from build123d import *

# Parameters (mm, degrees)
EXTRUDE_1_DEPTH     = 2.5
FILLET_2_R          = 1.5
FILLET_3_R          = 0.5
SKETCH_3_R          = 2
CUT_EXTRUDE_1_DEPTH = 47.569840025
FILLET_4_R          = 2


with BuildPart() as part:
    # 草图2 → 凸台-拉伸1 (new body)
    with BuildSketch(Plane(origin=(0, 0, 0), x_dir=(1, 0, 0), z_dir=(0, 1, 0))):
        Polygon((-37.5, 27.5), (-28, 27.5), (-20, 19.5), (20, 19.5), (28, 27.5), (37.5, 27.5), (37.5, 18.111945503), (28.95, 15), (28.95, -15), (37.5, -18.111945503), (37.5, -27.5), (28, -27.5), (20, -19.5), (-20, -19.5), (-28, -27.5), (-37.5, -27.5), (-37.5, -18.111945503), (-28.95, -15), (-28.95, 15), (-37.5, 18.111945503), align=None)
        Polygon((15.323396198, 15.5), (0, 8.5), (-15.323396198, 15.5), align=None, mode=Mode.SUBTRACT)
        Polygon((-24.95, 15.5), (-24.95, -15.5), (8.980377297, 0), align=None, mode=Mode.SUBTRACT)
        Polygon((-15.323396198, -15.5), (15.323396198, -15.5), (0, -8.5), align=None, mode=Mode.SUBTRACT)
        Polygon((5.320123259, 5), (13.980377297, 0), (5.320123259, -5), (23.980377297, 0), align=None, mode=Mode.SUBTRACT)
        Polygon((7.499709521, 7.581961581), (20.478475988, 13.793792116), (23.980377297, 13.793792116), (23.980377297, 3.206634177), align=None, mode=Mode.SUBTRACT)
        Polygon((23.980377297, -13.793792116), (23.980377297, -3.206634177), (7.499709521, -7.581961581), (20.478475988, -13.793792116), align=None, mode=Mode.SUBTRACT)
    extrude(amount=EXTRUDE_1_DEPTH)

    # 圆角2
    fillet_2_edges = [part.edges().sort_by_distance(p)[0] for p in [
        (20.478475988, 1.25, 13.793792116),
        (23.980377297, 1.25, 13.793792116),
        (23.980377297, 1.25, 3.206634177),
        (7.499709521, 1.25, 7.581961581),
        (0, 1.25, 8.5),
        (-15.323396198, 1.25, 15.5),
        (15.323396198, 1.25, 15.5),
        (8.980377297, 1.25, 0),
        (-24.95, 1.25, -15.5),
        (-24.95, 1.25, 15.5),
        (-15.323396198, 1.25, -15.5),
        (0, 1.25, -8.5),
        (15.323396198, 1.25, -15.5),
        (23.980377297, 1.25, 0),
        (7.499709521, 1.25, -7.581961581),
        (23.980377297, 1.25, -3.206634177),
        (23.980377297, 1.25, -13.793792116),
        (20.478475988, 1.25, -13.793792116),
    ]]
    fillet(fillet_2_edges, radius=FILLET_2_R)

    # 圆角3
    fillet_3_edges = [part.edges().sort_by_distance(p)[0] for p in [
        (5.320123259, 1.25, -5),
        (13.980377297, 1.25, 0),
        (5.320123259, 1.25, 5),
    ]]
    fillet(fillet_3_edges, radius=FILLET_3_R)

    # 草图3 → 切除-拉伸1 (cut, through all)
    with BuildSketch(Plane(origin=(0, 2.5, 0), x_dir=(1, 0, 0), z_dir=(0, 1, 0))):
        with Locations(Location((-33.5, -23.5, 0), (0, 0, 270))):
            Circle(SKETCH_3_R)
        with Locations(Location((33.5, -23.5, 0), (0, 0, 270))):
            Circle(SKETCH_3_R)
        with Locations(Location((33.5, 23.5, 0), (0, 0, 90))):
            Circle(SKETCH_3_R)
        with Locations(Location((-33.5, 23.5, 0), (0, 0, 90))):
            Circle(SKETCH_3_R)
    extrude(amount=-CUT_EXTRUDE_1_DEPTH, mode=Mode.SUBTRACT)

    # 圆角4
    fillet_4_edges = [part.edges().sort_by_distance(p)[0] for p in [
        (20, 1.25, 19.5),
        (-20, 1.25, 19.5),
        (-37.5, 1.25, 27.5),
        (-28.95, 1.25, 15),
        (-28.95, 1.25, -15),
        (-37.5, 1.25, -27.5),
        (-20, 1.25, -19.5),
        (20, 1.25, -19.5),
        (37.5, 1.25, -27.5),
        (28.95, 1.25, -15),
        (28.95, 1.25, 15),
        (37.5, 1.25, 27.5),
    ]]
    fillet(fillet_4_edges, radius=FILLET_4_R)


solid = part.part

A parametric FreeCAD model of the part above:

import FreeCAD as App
import Part
import Sketcher

V = App.Vector
Q = App.Units.Quantity


def edges_at(feature, points):
    """Names of the edges that pass closest to the given points."""
    edges = feature.Shape.Edges
    near = lambda p: min(range(len(edges)), key=lambda i: edges[i].distToShape(Part.Vertex(*p))[0])
    return sorted({f"Edge{near(p) + 1}" for p in points})

doc = App.newDocument("Part")
body = doc.addObject("PartDesign::Body", "Body")

# Sketch on XZ plane
sketch1 = doc.addObject("Sketcher::SketchObject", "Sketch")
body.addObject(sketch1)
sketch1.AttachmentSupport = (doc.XZ_Plane, [""])
sketch1.MapMode = "FlatFace"
sketch1.addGeometry([
    Part.LineSegment(V(-28, -27.5, 0), V(-37.5, -27.5, 0)),  # 0
    Part.LineSegment(V(-37.5, -27.5, 0), V(-37.5, -18.1, 0)),  # 1
    Part.LineSegment(V(-37.5, -18.1, 0), V(-28.9, -15, 0)),  # 2
    Part.LineSegment(V(-28.9, -15, 0), V(-28.9, 15, 0)),  # 3
    Part.LineSegment(V(-28.9, 15, 0), V(-37.5, 18.1, 0)),  # 4
    Part.LineSegment(V(-37.5, 18.1, 0), V(-37.5, 27.5, 0)),  # 5
    Part.LineSegment(V(-37.5, 27.5, 0), V(-28, 27.5, 0)),  # 6
    Part.LineSegment(V(-28, 27.5, 0), V(-20, 19.5, 0)),  # 7
    Part.LineSegment(V(-20, 19.5, 0), V(20, 19.5, 0)),  # 8
    Part.LineSegment(V(20, 19.5, 0), V(28, 27.5, 0)),  # 9
    Part.LineSegment(V(28, 27.5, 0), V(37.5, 27.5, 0)),  # 10
    Part.LineSegment(V(37.5, 27.5, 0), V(37.5, 18.1, 0)),  # 11
    Part.LineSegment(V(37.5, 18.1, 0), V(28.9, 15, 0)),  # 12
    Part.LineSegment(V(28.9, 15, 0), V(28.9, -15, 0)),  # 13
    Part.LineSegment(V(28.9, -15, 0), V(37.5, -18.1, 0)),  # 14
    Part.LineSegment(V(37.5, -18.1, 0), V(37.5, -27.5, 0)),  # 15
    Part.LineSegment(V(37.5, -27.5, 0), V(28, -27.5, 0)),  # 16
    Part.LineSegment(V(28, -27.5, 0), V(20, -19.5, 0)),  # 17
    Part.LineSegment(V(20, -19.5, 0), V(-20, -19.5, 0)),  # 18
    Part.LineSegment(V(-20, -19.5, 0), V(-28, -27.5, 0)),  # 19
    Part.LineSegment(V(24, 13.8, 0), V(20.5, 13.8, 0)),  # 20
    Part.LineSegment(V(20.5, 13.8, 0), V(7.5, 7.6, 0)),  # 21
    Part.LineSegment(V(7.5, 7.6, 0), V(24, 3.2, 0)),  # 22
    Part.LineSegment(V(24, 3.2, 0), V(24, 13.8, 0)),  # 23
    Part.LineSegment(V(-15.3, 15.5, 0), V(0, 8.5, 0)),  # 24
    Part.LineSegment(V(0, 8.5, 0), V(15.3, 15.5, 0)),  # 25
    Part.LineSegment(V(15.3, 15.5, 0), V(-15.3, 15.5, 0)),  # 26
    Part.LineSegment(V(5.3, -5, 0), V(24, 0, 0)),  # 27
    Part.LineSegment(V(24, 0, 0), V(5.3, 5, 0)),  # 28
    Part.LineSegment(V(5.3, 5, 0), V(14, 0, 0)),  # 29
    Part.LineSegment(V(14, 0, 0), V(5.3, -5, 0)),  # 30
    Part.LineSegment(V(7.5, -7.6, 0), V(20.5, -13.8, 0)),  # 31
    Part.LineSegment(V(20.5, -13.8, 0), V(24, -13.8, 0)),  # 32
    Part.LineSegment(V(24, -13.8, 0), V(24, -3.2, 0)),  # 33
    Part.LineSegment(V(24, -3.2, 0), V(7.5, -7.6, 0)),  # 34
    Part.LineSegment(V(15.3, -15.5, 0), V(0, -8.5, 0)),  # 35
    Part.LineSegment(V(0, -8.5, 0), V(-15.3, -15.5, 0)),  # 36
    Part.LineSegment(V(-15.3, -15.5, 0), V(15.3, -15.5, 0)),  # 37
    Part.LineSegment(V(-24.9, -15.5, 0), V(9, 0, 0)),  # 38
    Part.LineSegment(V(9, 0, 0), V(-24.9, 15.5, 0)),  # 39
    Part.LineSegment(V(-24.9, 15.5, 0), V(-24.9, -15.5, 0)),  # 40
], False)
sketch1.addConstraint([
    Sketcher.Constraint("Coincident", 0, 2, 1, 1),
    Sketcher.Constraint("Coincident", 1, 2, 2, 1),
    Sketcher.Constraint("Coincident", 2, 2, 3, 1),
    Sketcher.Constraint("Coincident", 3, 2, 4, 1),
    Sketcher.Constraint("Coincident", 4, 2, 5, 1),
    Sketcher.Constraint("Coincident", 5, 2, 6, 1),
    Sketcher.Constraint("Coincident", 6, 2, 7, 1),
    Sketcher.Constraint("Coincident", 7, 2, 8, 1),
    Sketcher.Constraint("Coincident", 8, 2, 9, 1),
    Sketcher.Constraint("Coincident", 9, 2, 10, 1),
    Sketcher.Constraint("Coincident", 10, 2, 11, 1),
    Sketcher.Constraint("Coincident", 11, 2, 12, 1),
    Sketcher.Constraint("Coincident", 12, 2, 13, 1),
    Sketcher.Constraint("Coincident", 13, 2, 14, 1),
    Sketcher.Constraint("Coincident", 14, 2, 15, 1),
    Sketcher.Constraint("Coincident", 15, 2, 16, 1),
    Sketcher.Constraint("Coincident", 16, 2, 17, 1),
    Sketcher.Constraint("Coincident", 17, 2, 18, 1),
    Sketcher.Constraint("Coincident", 18, 2, 19, 1),
    Sketcher.Constraint("Coincident", 19, 2, 0, 1),
    Sketcher.Constraint("Coincident", 20, 2, 21, 1),
    Sketcher.Constraint("Coincident", 21, 2, 22, 1),
    Sketcher.Constraint("Coincident", 22, 2, 23, 1),
    Sketcher.Constraint("Coincident", 23, 2, 20, 1),
    Sketcher.Constraint("Coincident", 24, 2, 25, 1),
    Sketcher.Constraint("Coincident", 25, 2, 26, 1),
    Sketcher.Constraint("Coincident", 26, 2, 24, 1),
    Sketcher.Constraint("Coincident", 27, 2, 28, 1),
    Sketcher.Constraint("Coincident", 28, 2, 29, 1),
    Sketcher.Constraint("Coincident", 29, 2, 30, 1),
    Sketcher.Constraint("Coincident", 30, 2, 27, 1),
    Sketcher.Constraint("Coincident", 31, 2, 32, 1),
    Sketcher.Constraint("Coincident", 32, 2, 33, 1),
    Sketcher.Constraint("Coincident", 33, 2, 34, 1),
    Sketcher.Constraint("Coincident", 34, 2, 31, 1),
    Sketcher.Constraint("Coincident", 35, 2, 36, 1),
    Sketcher.Constraint("Coincident", 36, 2, 37, 1),
    Sketcher.Constraint("Coincident", 37, 2, 35, 1),
    Sketcher.Constraint("Coincident", 38, 2, 39, 1),
    Sketcher.Constraint("Coincident", 39, 2, 40, 1),
    Sketcher.Constraint("Coincident", 40, 2, 38, 1),
    Sketcher.Constraint("Horizontal", 0),
    Sketcher.Constraint("Vertical", 1),
    Sketcher.Constraint("Vertical", 3),
    Sketcher.Constraint("Vertical", 5),
    Sketcher.Constraint("Horizontal", 6),
    Sketcher.Constraint("Horizontal", 8),
    Sketcher.Constraint("Horizontal", 10),
    Sketcher.Constraint("Vertical", 11),
    Sketcher.Constraint("Vertical", 13),
    Sketcher.Constraint("Vertical", 15),
    Sketcher.Constraint("Horizontal", 16),
    Sketcher.Constraint("Horizontal", 18),
    Sketcher.Constraint("Horizontal", 20),
    Sketcher.Constraint("Vertical", 23),
    Sketcher.Constraint("Horizontal", 26),
    Sketcher.Constraint("Horizontal", 32),
    Sketcher.Constraint("Vertical", 33),
    Sketcher.Constraint("Horizontal", 37),
    Sketcher.Constraint("Vertical", 40),
    Sketcher.Constraint("Symmetric", 0, 2, 10, 2, -1, 1),
    Sketcher.Constraint("Symmetric", 2, 2, 12, 2, -1, 1),
    Sketcher.Constraint("Symmetric", 4, 2, 14, 2, -1, 1),
    Sketcher.Constraint("Symmetric", 6, 2, 16, 2, -1, 1),
    Sketcher.Constraint("Symmetric", 7, 2, 17, 2, -1, 1),
    Sketcher.Constraint("Symmetric", 24, 2, 35, 2, -1, 1),
    Sketcher.Constraint("Symmetric", 25, 2, 36, 2, -1, 1),
    Sketcher.Constraint("Symmetric", 6, 2, 9, 2, -2),
    Sketcher.Constraint("Symmetric", 4, 2, 11, 2, -2),
    Sketcher.Constraint("Symmetric", 28, 2, 30, 2, -1),
    Sketcher.Constraint("Symmetric", 20, 2, 31, 2, -1),
    Sketcher.Constraint("Symmetric", 22, 2, 33, 2, -1),
    Sketcher.Constraint("Symmetric", 21, 2, 34, 2, -1),
    Sketcher.Constraint("PointOnObject", 24, 2, -2),
    Sketcher.Constraint("PointOnObject", 27, 2, -1),
    Sketcher.Constraint("PointOnObject", 29, 2, -1),
    Sketcher.Constraint("PointOnObject", 38, 2, -1),
    Sketcher.Constraint("Perpendicular", 7, 9),
    Sketcher.Constraint("Parallel", 2, 12),
    Sketcher.Constraint("Parallel", 4, 14),
    Sketcher.Constraint("Perpendicular", 17, 19),
    Sketcher.Constraint("Parallel", 24, 35),
    Sketcher.Constraint("Parallel", 36, 38),
    Sketcher.Constraint("Parallel", 35, 39),
    Sketcher.Constraint("Horizontal", 3, 2, 12, 2),
    Sketcher.Constraint("Horizontal", 26, 2, 39, 2),
    Sketcher.Constraint("Horizontal", 37, 2, 40, 2),
    Sketcher.Constraint("Vertical", 8, 2, 17, 2),
    Sketcher.Constraint("Vertical", 7, 2, 18, 2),
    Sketcher.Constraint("Vertical", 23, 2, 27, 2),
    Sketcher.Constraint("DistanceX", 8, 1, 8, 2, 40.0),
    Sketcher.Constraint("DistanceY", 3, 1, 3, 2, 30.0),
    Sketcher.Constraint("DistanceY", 40, 2, 40, 1, 31.0),
    Sketcher.Constraint("Angle", 2, Q("20 deg")),
    Sketcher.Constraint("Angle", 27, Q("15 deg")),
    Sketcher.Constraint("Angle", 29, Q("-30 deg")),
    Sketcher.Constraint("Distance", 29, 10.0),
    Sketcher.Constraint("DistanceX", 0, 2, 0, 1, 9.5),
    Sketcher.Constraint("DistanceX", 6, 2, -1, 1, 28.0),
    Sketcher.Constraint("DistanceY", 0, 2, 5, 2, 55.0),
    Sketcher.Constraint("DistanceY", 24, 2, 7, 2, 11.0),
    Sketcher.Constraint("DistanceX", 38, 2, 29, 2, 5.0),
    Sketcher.Constraint("DistanceX", 3, 2, 39, 2, 4.0),
    Sketcher.Constraint("DistanceX", 2, 2, -1, 1, 28.95),
    Sketcher.Constraint("DistanceX", 20, 2, 20, 1, 3.501901),
    Sketcher.Constraint("Distance", 21, 14.388718),
    Sketcher.Constraint("Distance", 38, 37.30309),
    Sketcher.Constraint("DistanceY", 23, 1, 23, 2, 10.587158),
    Sketcher.Constraint("DistanceX", -1, 1, 21, 2, 7.49971),
    Sketcher.Constraint("DistanceY", -1, 1, 21, 2, 7.581962),
])
pad1 = doc.addObject("PartDesign::Pad", "Pad")
body.addObject(pad1)
pad1.Profile = sketch1
pad1.Length = 2.5
pad1.Reversed = True
doc.recompute()

fillet = doc.addObject("PartDesign::Fillet", "Fillet")
body.addObject(fillet)
fillet.Base = (pad1, edges_at(pad1, [
    (20.478, 1.25, 13.794),
    (23.98, 1.25, 13.794),
    (23.98, 1.25, 3.207),
    (7.5, 1.25, 7.582),
    (0, 1.25, 8.5),
    (-15.323, 1.25, 15.5),
    (15.323, 1.25, 15.5),
    (8.98, 1.25, 0),
    (-24.95, 1.25, -15.5),
    (-24.95, 1.25, 15.5),
    (-15.323, 1.25, -15.5),
    (0, 1.25, -8.5),
    (15.323, 1.25, -15.5),
    (23.98, 1.25, 0),
    (7.5, 1.25, -7.582),
    (23.98, 1.25, -3.207),
    (23.98, 1.25, -13.794),
    (20.478, 1.25, -13.794),
]))
fillet.Radius = 1.5
doc.recompute()

fillet2 = doc.addObject("PartDesign::Fillet", "Fillet001")
body.addObject(fillet2)
fillet2.Base = (fillet, edges_at(fillet, [(5.32, 1.25, -5), (13.98, 1.25, 0), (5.32, 1.25, 5)]))
fillet2.Radius = 0.5

# Sketch on XZ plane
sketch2 = doc.addObject("Sketcher::SketchObject", "Sketch001")
body.addObject(sketch2)
sketch2.AttachmentSupport = (doc.XZ_Plane, [""])
sketch2.MapMode = "FlatFace"
sketch2.AttachmentOffset = App.Placement(V(0, 0, -2.5), App.Rotation())
sketch2.addGeometry([
    Part.Circle(V(-33.5, 23.5, 0), V(0, 0, 1), 2),
    Part.Circle(V(33.5, 23.5, 0), V(0, 0, 1), 2),
    Part.Circle(V(33.5, -23.5, 0), V(0, 0, 1), 2),
    Part.Circle(V(-33.5, -23.5, 0), V(0, 0, 1), 2),
], False)
sketch2.addConstraint([
    Sketcher.Constraint("Equal", 0, 1),
    Sketcher.Constraint("Equal", 1, 2),
    Sketcher.Constraint("Equal", 2, 3),
    Sketcher.Constraint("Symmetric", 0, 3, 2, 3, -1, 1),
    Sketcher.Constraint("Symmetric", 1, 3, 3, 3, -1, 1),
    Sketcher.Constraint("Symmetric", 0, 3, 1, 3, -2),
    Sketcher.Constraint("Diameter", 0, 4.0),
    Sketcher.Constraint("DistanceX", 0, 3, 1, 3, 67.0),
    Sketcher.Constraint("DistanceY", 2, 3, 1, 3, 47.0),
])
pocket1 = doc.addObject("PartDesign::Pocket", "Pocket")
body.addObject(pocket1)
pocket1.Profile = sketch2
pocket1.Type = "ThroughAll"
pocket1.Reversed = True
doc.recompute()

fillet3 = doc.addObject("PartDesign::Fillet", "Fillet002")
body.addObject(fillet3)
fillet3.Base = (pocket1, edges_at(pocket1, [
    (20, 1.25, 19.5),
    (-20, 1.25, 19.5),
    (-37.5, 1.25, 27.5),
    (-28.95, 1.25, 15),
    (-28.95, 1.25, -15),
    (-37.5, 1.25, -27.5),
    (-20, 1.25, -19.5),
    (20, 1.25, -19.5),
    (37.5, 1.25, -27.5),
    (28.95, 1.25, -15),
    (28.95, 1.25, 15),
    (37.5, 1.25, 27.5),
]))
fillet3.Radius = 2

doc.recompute()
